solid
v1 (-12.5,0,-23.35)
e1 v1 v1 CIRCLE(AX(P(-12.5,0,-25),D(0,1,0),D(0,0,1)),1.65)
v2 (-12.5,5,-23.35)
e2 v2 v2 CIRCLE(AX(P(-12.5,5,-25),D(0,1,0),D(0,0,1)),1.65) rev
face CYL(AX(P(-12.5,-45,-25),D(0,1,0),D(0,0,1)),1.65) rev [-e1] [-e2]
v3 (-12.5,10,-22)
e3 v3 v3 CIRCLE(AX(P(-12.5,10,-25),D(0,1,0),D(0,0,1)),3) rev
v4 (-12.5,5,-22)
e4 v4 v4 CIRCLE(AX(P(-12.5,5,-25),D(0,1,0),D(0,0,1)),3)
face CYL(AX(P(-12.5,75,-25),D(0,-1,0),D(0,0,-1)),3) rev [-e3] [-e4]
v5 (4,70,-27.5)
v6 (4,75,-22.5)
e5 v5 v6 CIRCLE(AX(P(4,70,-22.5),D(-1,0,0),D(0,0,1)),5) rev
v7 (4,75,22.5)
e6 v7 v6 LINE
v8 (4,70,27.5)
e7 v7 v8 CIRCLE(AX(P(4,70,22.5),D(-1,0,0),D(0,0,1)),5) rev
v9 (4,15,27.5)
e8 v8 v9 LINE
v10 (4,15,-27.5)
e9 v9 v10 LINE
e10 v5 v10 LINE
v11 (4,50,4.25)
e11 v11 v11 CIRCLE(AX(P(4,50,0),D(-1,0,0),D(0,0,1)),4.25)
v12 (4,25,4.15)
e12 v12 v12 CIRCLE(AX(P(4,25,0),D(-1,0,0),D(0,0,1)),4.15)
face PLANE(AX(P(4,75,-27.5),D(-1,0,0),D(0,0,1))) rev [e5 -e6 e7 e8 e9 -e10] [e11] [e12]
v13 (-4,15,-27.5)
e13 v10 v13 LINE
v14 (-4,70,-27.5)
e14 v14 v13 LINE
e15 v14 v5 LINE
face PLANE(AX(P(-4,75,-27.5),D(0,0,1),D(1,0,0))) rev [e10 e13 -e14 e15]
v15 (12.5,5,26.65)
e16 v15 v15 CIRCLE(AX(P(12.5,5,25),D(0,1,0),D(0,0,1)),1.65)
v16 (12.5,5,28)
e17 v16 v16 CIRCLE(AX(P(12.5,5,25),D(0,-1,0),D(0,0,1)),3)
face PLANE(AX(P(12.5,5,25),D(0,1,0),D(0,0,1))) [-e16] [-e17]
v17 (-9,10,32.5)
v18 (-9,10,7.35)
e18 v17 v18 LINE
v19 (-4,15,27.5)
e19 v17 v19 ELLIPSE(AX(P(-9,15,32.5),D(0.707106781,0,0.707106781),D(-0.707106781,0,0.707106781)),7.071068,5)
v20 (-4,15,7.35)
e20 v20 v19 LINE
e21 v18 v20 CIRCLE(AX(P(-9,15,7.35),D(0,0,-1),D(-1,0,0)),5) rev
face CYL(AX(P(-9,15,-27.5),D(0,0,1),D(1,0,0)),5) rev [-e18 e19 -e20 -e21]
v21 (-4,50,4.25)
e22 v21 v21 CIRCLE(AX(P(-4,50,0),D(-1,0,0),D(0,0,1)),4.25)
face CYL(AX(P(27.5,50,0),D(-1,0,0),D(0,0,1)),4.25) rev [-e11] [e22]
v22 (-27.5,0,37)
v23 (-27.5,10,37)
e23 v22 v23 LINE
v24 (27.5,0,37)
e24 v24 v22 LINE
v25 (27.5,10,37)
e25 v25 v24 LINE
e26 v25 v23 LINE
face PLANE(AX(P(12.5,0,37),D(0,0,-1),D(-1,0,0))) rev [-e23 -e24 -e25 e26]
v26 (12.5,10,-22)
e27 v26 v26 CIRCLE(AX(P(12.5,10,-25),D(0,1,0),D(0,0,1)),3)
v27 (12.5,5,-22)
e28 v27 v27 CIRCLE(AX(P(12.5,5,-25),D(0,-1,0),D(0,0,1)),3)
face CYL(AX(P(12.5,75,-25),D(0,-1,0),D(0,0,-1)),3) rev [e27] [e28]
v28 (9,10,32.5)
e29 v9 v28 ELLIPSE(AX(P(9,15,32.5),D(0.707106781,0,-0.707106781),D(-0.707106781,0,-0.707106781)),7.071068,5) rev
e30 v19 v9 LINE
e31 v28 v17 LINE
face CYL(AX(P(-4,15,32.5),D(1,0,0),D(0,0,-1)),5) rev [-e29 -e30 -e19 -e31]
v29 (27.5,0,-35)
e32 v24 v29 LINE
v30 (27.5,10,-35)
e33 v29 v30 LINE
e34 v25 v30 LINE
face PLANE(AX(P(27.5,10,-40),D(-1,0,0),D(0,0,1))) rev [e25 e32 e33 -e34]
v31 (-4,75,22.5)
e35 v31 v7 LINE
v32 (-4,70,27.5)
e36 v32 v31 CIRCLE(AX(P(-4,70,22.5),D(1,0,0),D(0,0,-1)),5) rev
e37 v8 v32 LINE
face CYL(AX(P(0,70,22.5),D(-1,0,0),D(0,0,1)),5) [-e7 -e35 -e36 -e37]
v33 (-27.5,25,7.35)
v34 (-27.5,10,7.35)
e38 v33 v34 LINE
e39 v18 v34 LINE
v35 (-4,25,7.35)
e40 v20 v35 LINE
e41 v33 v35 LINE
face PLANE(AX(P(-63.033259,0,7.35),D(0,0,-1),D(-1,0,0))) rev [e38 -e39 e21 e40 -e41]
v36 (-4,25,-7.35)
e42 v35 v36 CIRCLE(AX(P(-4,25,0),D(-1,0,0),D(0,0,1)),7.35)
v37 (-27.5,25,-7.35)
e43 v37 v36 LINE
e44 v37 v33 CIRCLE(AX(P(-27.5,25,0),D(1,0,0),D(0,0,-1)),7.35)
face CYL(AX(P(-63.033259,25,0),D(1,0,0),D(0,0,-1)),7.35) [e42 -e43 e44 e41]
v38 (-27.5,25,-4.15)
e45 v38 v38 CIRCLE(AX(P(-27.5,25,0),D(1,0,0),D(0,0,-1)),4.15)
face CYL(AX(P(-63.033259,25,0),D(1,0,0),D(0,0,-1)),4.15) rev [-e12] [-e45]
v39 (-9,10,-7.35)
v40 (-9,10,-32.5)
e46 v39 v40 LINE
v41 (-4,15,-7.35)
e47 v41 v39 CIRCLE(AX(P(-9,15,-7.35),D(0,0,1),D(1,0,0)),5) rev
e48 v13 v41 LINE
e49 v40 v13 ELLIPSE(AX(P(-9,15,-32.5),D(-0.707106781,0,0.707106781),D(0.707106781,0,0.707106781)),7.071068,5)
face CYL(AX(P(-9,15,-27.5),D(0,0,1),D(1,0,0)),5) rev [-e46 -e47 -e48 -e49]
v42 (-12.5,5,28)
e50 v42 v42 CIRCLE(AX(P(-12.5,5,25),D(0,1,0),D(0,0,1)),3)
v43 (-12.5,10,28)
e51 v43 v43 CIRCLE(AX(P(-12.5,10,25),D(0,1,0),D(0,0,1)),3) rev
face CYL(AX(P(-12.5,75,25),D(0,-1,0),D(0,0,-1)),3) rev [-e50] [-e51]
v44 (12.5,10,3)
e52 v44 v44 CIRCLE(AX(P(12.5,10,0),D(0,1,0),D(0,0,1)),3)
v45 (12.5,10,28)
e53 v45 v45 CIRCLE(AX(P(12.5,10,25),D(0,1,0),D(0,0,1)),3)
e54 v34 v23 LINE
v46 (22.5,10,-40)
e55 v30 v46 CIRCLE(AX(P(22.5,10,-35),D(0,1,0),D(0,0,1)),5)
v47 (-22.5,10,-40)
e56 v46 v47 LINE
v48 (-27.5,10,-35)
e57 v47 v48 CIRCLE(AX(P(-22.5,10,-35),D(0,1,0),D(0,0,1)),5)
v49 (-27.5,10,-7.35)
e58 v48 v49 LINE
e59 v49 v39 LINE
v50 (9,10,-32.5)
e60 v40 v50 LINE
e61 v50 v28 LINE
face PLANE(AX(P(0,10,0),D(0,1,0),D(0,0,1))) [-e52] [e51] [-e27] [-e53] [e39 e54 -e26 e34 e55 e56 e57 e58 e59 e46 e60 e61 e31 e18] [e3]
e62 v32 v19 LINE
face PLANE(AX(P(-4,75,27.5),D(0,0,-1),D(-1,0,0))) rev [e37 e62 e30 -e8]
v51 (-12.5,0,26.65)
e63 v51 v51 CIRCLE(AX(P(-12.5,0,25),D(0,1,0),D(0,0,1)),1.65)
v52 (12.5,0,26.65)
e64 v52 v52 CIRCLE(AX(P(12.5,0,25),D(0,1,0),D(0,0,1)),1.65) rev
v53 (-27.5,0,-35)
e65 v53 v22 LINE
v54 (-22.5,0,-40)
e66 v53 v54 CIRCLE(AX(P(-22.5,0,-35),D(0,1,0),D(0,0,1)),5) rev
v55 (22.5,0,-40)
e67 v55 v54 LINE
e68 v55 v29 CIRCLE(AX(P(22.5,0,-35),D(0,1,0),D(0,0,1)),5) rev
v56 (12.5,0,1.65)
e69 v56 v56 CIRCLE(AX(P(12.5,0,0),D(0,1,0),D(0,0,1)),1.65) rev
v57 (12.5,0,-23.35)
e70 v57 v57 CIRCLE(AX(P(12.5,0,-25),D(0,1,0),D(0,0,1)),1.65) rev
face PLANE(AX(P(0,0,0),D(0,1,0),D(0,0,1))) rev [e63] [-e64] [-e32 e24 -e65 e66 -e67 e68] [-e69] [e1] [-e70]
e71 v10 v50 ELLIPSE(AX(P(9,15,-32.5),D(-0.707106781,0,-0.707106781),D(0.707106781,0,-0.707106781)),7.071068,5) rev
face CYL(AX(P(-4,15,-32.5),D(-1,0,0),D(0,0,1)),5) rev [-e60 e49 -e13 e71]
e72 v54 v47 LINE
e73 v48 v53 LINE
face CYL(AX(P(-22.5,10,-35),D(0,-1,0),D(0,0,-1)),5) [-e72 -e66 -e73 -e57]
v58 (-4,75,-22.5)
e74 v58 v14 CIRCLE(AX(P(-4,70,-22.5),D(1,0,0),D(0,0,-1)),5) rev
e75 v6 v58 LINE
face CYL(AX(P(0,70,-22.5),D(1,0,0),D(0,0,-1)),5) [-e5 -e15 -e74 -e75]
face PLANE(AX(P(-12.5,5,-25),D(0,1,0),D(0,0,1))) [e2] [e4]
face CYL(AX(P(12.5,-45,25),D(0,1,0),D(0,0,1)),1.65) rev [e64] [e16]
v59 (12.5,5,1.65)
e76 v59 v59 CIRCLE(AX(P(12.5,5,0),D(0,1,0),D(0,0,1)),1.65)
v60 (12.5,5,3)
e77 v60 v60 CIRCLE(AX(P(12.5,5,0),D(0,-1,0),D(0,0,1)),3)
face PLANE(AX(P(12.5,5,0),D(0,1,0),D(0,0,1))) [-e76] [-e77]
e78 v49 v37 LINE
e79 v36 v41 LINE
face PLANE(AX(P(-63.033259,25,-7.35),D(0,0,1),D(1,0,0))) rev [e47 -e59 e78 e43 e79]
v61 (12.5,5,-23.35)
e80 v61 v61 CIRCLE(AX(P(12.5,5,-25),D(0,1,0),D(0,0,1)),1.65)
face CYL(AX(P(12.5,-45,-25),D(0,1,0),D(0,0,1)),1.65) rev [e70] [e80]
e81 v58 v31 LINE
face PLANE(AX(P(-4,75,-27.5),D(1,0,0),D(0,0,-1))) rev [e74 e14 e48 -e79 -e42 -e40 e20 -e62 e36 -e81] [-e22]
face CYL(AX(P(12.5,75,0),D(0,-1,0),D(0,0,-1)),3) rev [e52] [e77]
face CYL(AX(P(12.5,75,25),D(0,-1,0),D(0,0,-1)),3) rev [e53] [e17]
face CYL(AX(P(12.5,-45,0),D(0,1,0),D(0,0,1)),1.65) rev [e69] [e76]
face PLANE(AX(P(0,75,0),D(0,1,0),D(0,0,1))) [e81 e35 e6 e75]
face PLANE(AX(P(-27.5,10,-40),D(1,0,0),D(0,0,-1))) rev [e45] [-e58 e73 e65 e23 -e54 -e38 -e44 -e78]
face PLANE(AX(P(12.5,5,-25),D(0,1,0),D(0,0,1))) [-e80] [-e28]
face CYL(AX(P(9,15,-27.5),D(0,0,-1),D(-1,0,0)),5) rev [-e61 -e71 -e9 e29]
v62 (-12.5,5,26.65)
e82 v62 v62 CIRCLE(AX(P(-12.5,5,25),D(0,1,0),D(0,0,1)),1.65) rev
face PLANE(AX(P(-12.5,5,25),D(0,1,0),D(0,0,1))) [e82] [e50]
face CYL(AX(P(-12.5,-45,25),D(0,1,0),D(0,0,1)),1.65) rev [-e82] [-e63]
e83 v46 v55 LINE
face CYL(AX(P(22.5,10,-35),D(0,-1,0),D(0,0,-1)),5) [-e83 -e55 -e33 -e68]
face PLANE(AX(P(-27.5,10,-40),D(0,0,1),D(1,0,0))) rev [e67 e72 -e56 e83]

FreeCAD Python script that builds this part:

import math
import FreeCAD as App
import Part
import Sketcher
Q = App.Units.Quantity


def edges_at(feature, points):
    """Names of the edges that pass closest to the given points."""
    edges = feature.Shape.Edges
    near = lambda p: min(range(len(edges)), key=lambda i: edges[i].distToShape(Part.Vertex(*p))[0])
    return sorted({f"Edge{near(p) + 1}" for p in points})


def add_polygon(sketch, points):
    """Adds a closed chain of lines whose ends are joined by coincident constraints."""
    first, n = sketch.GeometryCount, len(points)
    for a, b in zip(points, points[1:] + points[:1]):
        sketch.addGeometry(Part.LineSegment(App.Vector(*a, 0), App.Vector(*b, 0)), False)
    for i in range(n):
        sketch.addConstraint(Sketcher.Constraint("Coincident", first + i, 2, first + (i + 1) % n, 1))

doc = App.newDocument("Part")
params = doc.addObject("Spreadsheet::Sheet", "Params")
for row, (alias, value) in enumerate([
    ("sketch1_width", "55 mm"),
    ("sketch1_height", "80 mm"),
    ("pad1_length", "10 mm"),
    ("sketch2_diameter", "3.3 mm"),
    ("pocket1_length", "55 mm"),
    ("linearpattern_pitch", "25 mm"),
    ("sketch3_diameter", "3.3 mm"),
    ("pocket2_length", "55 mm"),
    ("sketch4_diameter", "3.3 mm"),
    ("pocket3_length", "55 mm"),
    ("sketch5_width", "8 mm"),
    ("sketch5_height", "55 mm"),
    ("pad2_length", "65 mm"),
    ("fillet_radius", "5 mm"),
    ("sketch6_diameter", "8.5 mm"),
    ("sketch7_diameter", "6 mm"),
    ("pocket5_length", "71 mm"),
    ("linearpattern2_pitch", "25 mm"),
    ("sketch8_diameter", "6 mm"),
    ("pocket6_length", "71 mm"),
    ("sketch9_diameter", "6 mm"),
    ("pocket7_length", "71 mm"),
    ("pocket8_length", "10 mm"),
    ("sketch11_diameter", "8.3 mm"),
    ("sketch11_width", "25 mm"),
    ("sketch11_radius", "7.35 mm"),
    ("pad3_length", "23.5 mm"),
    ("sketch12_diameter", "8.3 mm"),
    ("pocket9_length", "20 mm"),
], start=1):
    params.set(f"A{row}", alias)
    params.set(f"B{row}", "=" + value)
    params.setAlias(f"B{row}", alias)

body = doc.addObject("PartDesign::Body", "Body")

# Sketch on XZ plane
sketch1 = body.newObject("Sketcher::SketchObject", "Sketch")
sketch1.AttachmentSupport = (doc.getObject("XZ_Plane"), [""])
sketch1.MapMode = "FlatFace"
add_polygon(sketch1, [(-28, -40), (-28, 40), (28, 40), (28, -40)])  # lines 0-3
sketch1.addConstraint([
    Sketcher.Constraint("Vertical", 0),
    Sketcher.Constraint("Horizontal", 1),
    Sketcher.Constraint("Vertical", 2),
    Sketcher.Constraint("Horizontal", 3),
    Sketcher.Constraint("Symmetric", 0, 2, 2, 2, -1, 1),
    Sketcher.Constraint("DistanceX", 1, 1, 1, 2, Q("55 mm")),
    Sketcher.Constraint("DistanceY", 0, 1, 0, 2, Q("80 mm")),
])
sketch1.setExpression("Constraints[9]", "Params.sketch1_width")
sketch1.setExpression("Constraints[10]", "Params.sketch1_height")
pad1 = body.newObject("PartDesign::Pad", "Pad")
pad1.Profile = sketch1
pad1.setExpression("Length", "Params.pad1_length")
pad1.Reversed = True

# Sketch on XZ plane
sketch2 = body.newObject("Sketcher::SketchObject", "Sketch001")
sketch2.AttachmentSupport = (doc.getObject("XZ_Plane"), [""])
sketch2.MapMode = "FlatFace"
sketch2.AttachmentOffset = App.Placement(App.Vector(0, 0, -10), App.Rotation())
sketch2.addGeometry(Part.Circle(App.Vector(-12.5, 25, 0), App.Vector(0, 0, 1), 1.6), False)
sketch2.addConstraint([
    Sketcher.Constraint("Diameter", 0, Q("3.3 mm")),
    Sketcher.Constraint("DistanceY", -1, 1, 0, 3, Q("25 mm")),
    Sketcher.Constraint("DistanceX", 0, 3, -1, 1, Q("12.5 mm")),
])
sketch2.setExpression("Constraints[0]", "Params.sketch2_diameter")
pocket1 = body.newObject("PartDesign::Pocket", "Pocket")
pocket1.Profile = sketch2
pocket1.setExpression("Length", "Params.pocket1_length")
pocket1.Reversed = True
doc.recompute()

linearpattern = body.newObject("PartDesign::LinearPattern", "LinearPattern")
linearpattern.Originals = [pocket1]
linearpattern.Direction = (doc.getObject("Z_Axis"), [""])
linearpattern.Mode = "offset"
linearpattern.setExpression("Offset", "Params.linearpattern_pitch")
linearpattern.Occurrences = 3
linearpattern.Reversed = True
body.Tip = linearpattern
doc.recompute()

mirrored = body.newObject("PartDesign::Mirrored", "Mirrored")
mirrored.Originals = [pocket1]
mirrored.MirrorPlane = (doc.getObject("YZ_Plane"), [""])
body.Tip = mirrored

# Sketch on XZ plane
sketch3 = body.newObject("Sketcher::SketchObject", "Sketch002")
sketch3.AttachmentSupport = (doc.getObject("XZ_Plane"), [""])
sketch3.MapMode = "FlatFace"
sketch3.AttachmentOffset = App.Placement(App.Vector(0, 0, -10), App.Rotation())
sketch3.addGeometry(Part.Circle(App.Vector(12.5, 0, 0), App.Vector(0, 0, 1), 1.6), False)
sketch3.addConstraint([
    Sketcher.Constraint("PointOnObject", 0, 3, -1),
    Sketcher.Constraint("Diameter", 0, Q("3.3 mm")),
    Sketcher.Constraint("DistanceX", -1, 1, 0, 3, Q("12.5 mm")),
])
sketch3.setExpression("Constraints[1]", "Params.sketch3_diameter")
pocket2 = body.newObject("PartDesign::Pocket", "Pocket001")
pocket2.Profile = sketch3
pocket2.setExpression("Length", "Params.pocket2_length")
pocket2.Reversed = True

# Sketch on XZ plane
sketch4 = body.newObject("Sketcher::SketchObject", "Sketch003")
sketch4.AttachmentSupport = (doc.getObject("XZ_Plane"), [""])
sketch4.MapMode = "FlatFace"
sketch4.AttachmentOffset = App.Placement(App.Vector(0, 0, -10), App.Rotation())
sketch4.addGeometry(Part.Circle(App.Vector(12.5, -25, 0), App.Vector(0, 0, 1), 1.6), False)
sketch4.addConstraint([
    Sketcher.Constraint("Diameter", 0, Q("3.3 mm")),
    Sketcher.Constraint("DistanceY", 0, 3, -1, 1, Q("25 mm")),
    Sketcher.Constraint("DistanceX", -1, 1, 0, 3, Q("12.5 mm")),
])
sketch4.setExpression("Constraints[0]", "Params.sketch4_diameter")
pocket3 = body.newObject("PartDesign::Pocket", "Pocket002")
pocket3.Profile = sketch4
pocket3.setExpression("Length", "Params.pocket3_length")
pocket3.Reversed = True

# Sketch on XZ plane
sketch5 = body.newObject("Sketcher::SketchObject", "Sketch004")
sketch5.AttachmentSupport = (doc.getObject("XZ_Plane"), [""])
sketch5.MapMode = "FlatFace"
sketch5.AttachmentOffset = App.Placement(App.Vector(0, 0, -10), App.Rotation())
add_polygon(sketch5, [(-4, -28), (-4, 28), (4, 28), (4, -28)])  # lines 0-3
sketch5.addConstraint([
    Sketcher.Constraint("Vertical", 0),
    Sketcher.Constraint("Horizontal", 1),
    Sketcher.Constraint("Vertical", 2),
    Sketcher.Constraint("Horizontal", 3),
    Sketcher.Constraint("Symmetric", 0, 2, 2, 2, -1, 1),
    Sketcher.Constraint("DistanceX", 1, 1, 1, 2, Q("8 mm")),
    Sketcher.Constraint("DistanceY", 0, 1, 0, 2, Q("55 mm")),
])
sketch5.setExpression("Constraints[9]", "Params.sketch5_width")
sketch5.setExpression("Constraints[10]", "Params.sketch5_height")
pad2 = body.newObject("PartDesign::Pad", "Pad001")
pad2.Profile = sketch5
pad2.setExpression("Length", "Params.pad2_length")
pad2.Reversed = True
doc.recompute()

fillet = body.newObject("PartDesign::Fillet", "Fillet")
fillet.Base = (pad2, edges_at(pad2, [
    (4, 10, 0),
    (0, 10, -27.5),
    (-4, 10, 0),
    (0, 10, 27.5),
    (0, 75, -27.5),
    (0, 75, 27.5),
    (-27.5, 5, -40),
    (27.5, 5, -40),
]))
fillet.setExpression("Radius", "Params.fillet_radius")

# Sketch on YZ plane
sketch6 = body.newObject("Sketcher::SketchObject", "Sketch005")
sketch6.AttachmentSupport = (doc.getObject("YZ_Plane"), [""])
sketch6.MapMode = "FlatFace"
sketch6.AttachmentOffset = App.Placement(App.Vector(0, 0, -4), App.Rotation())
sketch6.addGeometry(Part.Circle(App.Vector(50, 0, 0), App.Vector(0, 0, 1), 4.2), False)
sketch6.addConstraint([
    Sketcher.Constraint("PointOnObject", 0, 3, -1),
    Sketcher.Constraint("Diameter", 0, Q("8.5 mm")),
    Sketcher.Constraint("DistanceX", -1, 1, 0, 3, Q("50 mm")),
])
sketch6.setExpression("Constraints[1]", "Params.sketch6_diameter")
pocket4 = body.newObject("PartDesign::Pocket", "Pocket003")
pocket4.Profile = sketch6
pocket4.Type = "ThroughAll"
pocket4.Reversed = True

# Sketch on XZ plane
sketch7 = body.newObject("Sketcher::SketchObject", "Sketch006")
sketch7.AttachmentSupport = (doc.getObject("XZ_Plane"), [""])
sketch7.MapMode = "FlatFace"
sketch7.AttachmentOffset = App.Placement(App.Vector(0, 0, -5), App.Rotation())
sketch7.addGeometry(Part.Circle(App.Vector(-12.5, 25, 0), App.Vector(0, 0, 1), 3), False)
sketch7.addConstraint([
    Sketcher.Constraint("Diameter", 0, Q("6 mm")),
    Sketcher.Constraint("DistanceY", -1, 1, 0, 3, Q("25 mm")),
    Sketcher.Constraint("DistanceX", 0, 3, -1, 1, Q("12.5 mm")),
])
sketch7.setExpression("Constraints[0]", "Params.sketch7_diameter")
pocket5 = body.newObject("PartDesign::Pocket", "Pocket004")
pocket5.Profile = sketch7
pocket5.setExpression("Length", "Params.pocket5_length")
doc.recompute()

linearpattern2 = body.newObject("PartDesign::LinearPattern", "LinearPattern001")
linearpattern2.Originals = [pocket5]
linearpattern2.Direction = (doc.getObject("Z_Axis"), [""])
linearpattern2.Mode = "offset"
linearpattern2.setExpression("Offset", "Params.linearpattern2_pitch")
linearpattern2.Occurrences = 3
linearpattern2.Reversed = True
body.Tip = linearpattern2
doc.recompute()

mirrored2 = body.newObject("PartDesign::Mirrored", "Mirrored001")
mirrored2.Originals = [pocket5]
mirrored2.MirrorPlane = (doc.getObject("YZ_Plane"), [""])
body.Tip = mirrored2

# Sketch on XZ plane
sketch8 = body.newObject("Sketcher::SketchObject", "Sketch007")
sketch8.AttachmentSupport = (doc.getObject("XZ_Plane"), [""])
sketch8.MapMode = "FlatFace"
sketch8.AttachmentOffset = App.Placement(App.Vector(0, 0, -5), App.Rotation())
sketch8.addGeometry(Part.Circle(App.Vector(12.5, 0, 0), App.Vector(0, 0, 1), 3), False)
sketch8.addConstraint([
    Sketcher.Constraint("PointOnObject", 0, 3, -1),
    Sketcher.Constraint("Diameter", 0, Q("6 mm")),
    Sketcher.Constraint("DistanceX", -1, 1, 0, 3, Q("12.5 mm")),
])
sketch8.setExpression("Constraints[1]", "Params.sketch8_diameter")
pocket6 = body.newObject("PartDesign::Pocket", "Pocket005")
pocket6.Profile = sketch8
pocket6.setExpression("Length", "Params.pocket6_length")

# Sketch on XZ plane
sketch9 = body.newObject("Sketcher::SketchObject", "Sketch008")
sketch9.AttachmentSupport = (doc.getObject("XZ_Plane"), [""])
sketch9.MapMode = "FlatFace"
sketch9.AttachmentOffset = App.Placement(App.Vector(0, 0, -5), App.Rotation())
sketch9.addGeometry(Part.Circle(App.Vector(12.5, -25, 0), App.Vector(0, 0, 1), 3), False)
sketch9.addConstraint([
    Sketcher.Constraint("Diameter", 0, Q("6 mm")),
    Sketcher.Constraint("DistanceY", 0, 3, -1, 1, Q("25 mm")),
    Sketcher.Constraint("DistanceX", -1, 1, 0, 3, Q("12.5 mm")),
])
sketch9.setExpression("Constraints[0]", "Params.sketch9_diameter")
pocket7 = body.newObject("PartDesign::Pocket", "Pocket006")
pocket7.Profile = sketch9
pocket7.setExpression("Length", "Params.pocket7_length")

# Sketch on XZ plane
sketch10 = body.newObject("Sketcher::SketchObject", "Sketch009")
sketch10.AttachmentSupport = (doc.getObject("XZ_Plane"), [""])
sketch10.MapMode = "FlatFace"
sketch10.AttachmentOffset = App.Placement(App.Vector(0, 0, -10), App.Rotation())
add_polygon(sketch10, [(-38, 37), (-38, 44), (40, 44), (40, 37)])  # lines 0-3
sketch10.addConstraint([
    Sketcher.Constraint("Vertical", 0),
    Sketcher.Constraint("Horizontal", 1),
    Sketcher.Constraint("Vertical", 2),
    Sketcher.Constraint("Horizontal", 3),
    Sketcher.Constraint("DistanceY", -1, 1, 2, 2, Q("37 mm")),
    Sketcher.Constraint("DistanceY", 0, 1, 0, 2, Q("7.287301 mm")),
    Sketcher.Constraint("DistanceX", 1, 1, 1, 2, Q("78.425081 mm")),
    Sketcher.Constraint("DistanceX", 0, 2, -1, 1, Q("38.055736 mm")),
])
pocket8 = body.newObject("PartDesign::Pocket", "Pocket007")
pocket8.Profile = sketch10
pocket8.setExpression("Length", "Params.pocket8_length")
pocket8.Reversed = True

# Sketch on YZ plane
sketch11 = body.newObject("Sketcher::SketchObject", "Sketch010")
sketch11.AttachmentSupport = (doc.getObject("YZ_Plane"), [""])
sketch11.MapMode = "FlatFace"
sketch11.AttachmentOffset = App.Placement(App.Vector(0, 0, -4), App.Rotation())
sketch11.addGeometry([
    Part.LineSegment(App.Vector(25, -7.3, 0), App.Vector(0, -7.3, 0)),  # 0
    Part.LineSegment(App.Vector(0, -7.3, 0), App.Vector(0, 7.3, 0)),  # 1
    Part.LineSegment(App.Vector(0, 7.3, 0), App.Vector(25, 7.3, 0)),  # 2
    Part.ArcOfCircle(Part.Circle(App.Vector(25, 0, 0), App.Vector(0, 0, 1), 7.3), math.radians(-90), math.radians(90)),  # 3
    Part.Circle(App.Vector(25, 0, 0), App.Vector(0, 0, 1), 4.2),  # 4
], False)
sketch11.addConstraint([
    Sketcher.Constraint("Coincident", 0, 2, 1, 1),
    Sketcher.Constraint("Coincident", 1, 2, 2, 1),
    Sketcher.Constraint("Tangent", 2, 2, 3, 2),
    Sketcher.Constraint("Tangent", 3, 1, 0, 1),
    Sketcher.Constraint("Horizontal", 0),
    Sketcher.Constraint("Vertical", 1),
    Sketcher.Constraint("Horizontal", 2),
    Sketcher.Constraint("Coincident", 4, 3, 3, 3),
    Sketcher.Constraint("Symmetric", 0, 2, 1, 2, -1, 1),
    Sketcher.Constraint("Diameter", 4, Q("8.3 mm")),
    Sketcher.Constraint("DistanceX", 0, 2, 0, 1, Q("25 mm")),
    Sketcher.Constraint("Radius", 3, Q("7.35 mm")),
])
sketch11.setExpression("Constraints[9]", "Params.sketch11_diameter")
sketch11.setExpression("Constraints[10]", "Params.sketch11_width")
sketch11.setExpression("Constraints[11]", "Params.sketch11_radius")
pad3 = body.newObject("PartDesign::Pad", "Pad002")
pad3.Profile = sketch11
pad3.setExpression("Length", "Params.pad3_length")
pad3.Reversed = True

# Sketch on YZ plane
sketch12 = body.newObject("Sketcher::SketchObject", "Sketch011")
sketch12.AttachmentSupport = (doc.getObject("YZ_Plane"), [""])
sketch12.MapMode = "FlatFace"
sketch12.AttachmentOffset = App.Placement(App.Vector(0, 0, -4), App.Rotation())
sketch12.addGeometry(Part.Circle(App.Vector(25, 0, 0), App.Vector(0, 0, 1), 4.2), False)
sketch12.addConstraint([
    Sketcher.Constraint("PointOnObject", 0, 3, -1),
    Sketcher.Constraint("Diameter", 0, Q("8.3 mm")),
    Sketcher.Constraint("DistanceX", -1, 1, 0, 3, Q("25 mm")),
])
sketch12.setExpression("Constraints[1]", "Params.sketch12_diameter")
pocket9 = body.newObject("PartDesign::Pocket", "Pocket008")
pocket9.Profile = sketch12
pocket9.setExpression("Length", "Params.pocket9_length")
pocket9.Reversed = True

doc.recompute()
